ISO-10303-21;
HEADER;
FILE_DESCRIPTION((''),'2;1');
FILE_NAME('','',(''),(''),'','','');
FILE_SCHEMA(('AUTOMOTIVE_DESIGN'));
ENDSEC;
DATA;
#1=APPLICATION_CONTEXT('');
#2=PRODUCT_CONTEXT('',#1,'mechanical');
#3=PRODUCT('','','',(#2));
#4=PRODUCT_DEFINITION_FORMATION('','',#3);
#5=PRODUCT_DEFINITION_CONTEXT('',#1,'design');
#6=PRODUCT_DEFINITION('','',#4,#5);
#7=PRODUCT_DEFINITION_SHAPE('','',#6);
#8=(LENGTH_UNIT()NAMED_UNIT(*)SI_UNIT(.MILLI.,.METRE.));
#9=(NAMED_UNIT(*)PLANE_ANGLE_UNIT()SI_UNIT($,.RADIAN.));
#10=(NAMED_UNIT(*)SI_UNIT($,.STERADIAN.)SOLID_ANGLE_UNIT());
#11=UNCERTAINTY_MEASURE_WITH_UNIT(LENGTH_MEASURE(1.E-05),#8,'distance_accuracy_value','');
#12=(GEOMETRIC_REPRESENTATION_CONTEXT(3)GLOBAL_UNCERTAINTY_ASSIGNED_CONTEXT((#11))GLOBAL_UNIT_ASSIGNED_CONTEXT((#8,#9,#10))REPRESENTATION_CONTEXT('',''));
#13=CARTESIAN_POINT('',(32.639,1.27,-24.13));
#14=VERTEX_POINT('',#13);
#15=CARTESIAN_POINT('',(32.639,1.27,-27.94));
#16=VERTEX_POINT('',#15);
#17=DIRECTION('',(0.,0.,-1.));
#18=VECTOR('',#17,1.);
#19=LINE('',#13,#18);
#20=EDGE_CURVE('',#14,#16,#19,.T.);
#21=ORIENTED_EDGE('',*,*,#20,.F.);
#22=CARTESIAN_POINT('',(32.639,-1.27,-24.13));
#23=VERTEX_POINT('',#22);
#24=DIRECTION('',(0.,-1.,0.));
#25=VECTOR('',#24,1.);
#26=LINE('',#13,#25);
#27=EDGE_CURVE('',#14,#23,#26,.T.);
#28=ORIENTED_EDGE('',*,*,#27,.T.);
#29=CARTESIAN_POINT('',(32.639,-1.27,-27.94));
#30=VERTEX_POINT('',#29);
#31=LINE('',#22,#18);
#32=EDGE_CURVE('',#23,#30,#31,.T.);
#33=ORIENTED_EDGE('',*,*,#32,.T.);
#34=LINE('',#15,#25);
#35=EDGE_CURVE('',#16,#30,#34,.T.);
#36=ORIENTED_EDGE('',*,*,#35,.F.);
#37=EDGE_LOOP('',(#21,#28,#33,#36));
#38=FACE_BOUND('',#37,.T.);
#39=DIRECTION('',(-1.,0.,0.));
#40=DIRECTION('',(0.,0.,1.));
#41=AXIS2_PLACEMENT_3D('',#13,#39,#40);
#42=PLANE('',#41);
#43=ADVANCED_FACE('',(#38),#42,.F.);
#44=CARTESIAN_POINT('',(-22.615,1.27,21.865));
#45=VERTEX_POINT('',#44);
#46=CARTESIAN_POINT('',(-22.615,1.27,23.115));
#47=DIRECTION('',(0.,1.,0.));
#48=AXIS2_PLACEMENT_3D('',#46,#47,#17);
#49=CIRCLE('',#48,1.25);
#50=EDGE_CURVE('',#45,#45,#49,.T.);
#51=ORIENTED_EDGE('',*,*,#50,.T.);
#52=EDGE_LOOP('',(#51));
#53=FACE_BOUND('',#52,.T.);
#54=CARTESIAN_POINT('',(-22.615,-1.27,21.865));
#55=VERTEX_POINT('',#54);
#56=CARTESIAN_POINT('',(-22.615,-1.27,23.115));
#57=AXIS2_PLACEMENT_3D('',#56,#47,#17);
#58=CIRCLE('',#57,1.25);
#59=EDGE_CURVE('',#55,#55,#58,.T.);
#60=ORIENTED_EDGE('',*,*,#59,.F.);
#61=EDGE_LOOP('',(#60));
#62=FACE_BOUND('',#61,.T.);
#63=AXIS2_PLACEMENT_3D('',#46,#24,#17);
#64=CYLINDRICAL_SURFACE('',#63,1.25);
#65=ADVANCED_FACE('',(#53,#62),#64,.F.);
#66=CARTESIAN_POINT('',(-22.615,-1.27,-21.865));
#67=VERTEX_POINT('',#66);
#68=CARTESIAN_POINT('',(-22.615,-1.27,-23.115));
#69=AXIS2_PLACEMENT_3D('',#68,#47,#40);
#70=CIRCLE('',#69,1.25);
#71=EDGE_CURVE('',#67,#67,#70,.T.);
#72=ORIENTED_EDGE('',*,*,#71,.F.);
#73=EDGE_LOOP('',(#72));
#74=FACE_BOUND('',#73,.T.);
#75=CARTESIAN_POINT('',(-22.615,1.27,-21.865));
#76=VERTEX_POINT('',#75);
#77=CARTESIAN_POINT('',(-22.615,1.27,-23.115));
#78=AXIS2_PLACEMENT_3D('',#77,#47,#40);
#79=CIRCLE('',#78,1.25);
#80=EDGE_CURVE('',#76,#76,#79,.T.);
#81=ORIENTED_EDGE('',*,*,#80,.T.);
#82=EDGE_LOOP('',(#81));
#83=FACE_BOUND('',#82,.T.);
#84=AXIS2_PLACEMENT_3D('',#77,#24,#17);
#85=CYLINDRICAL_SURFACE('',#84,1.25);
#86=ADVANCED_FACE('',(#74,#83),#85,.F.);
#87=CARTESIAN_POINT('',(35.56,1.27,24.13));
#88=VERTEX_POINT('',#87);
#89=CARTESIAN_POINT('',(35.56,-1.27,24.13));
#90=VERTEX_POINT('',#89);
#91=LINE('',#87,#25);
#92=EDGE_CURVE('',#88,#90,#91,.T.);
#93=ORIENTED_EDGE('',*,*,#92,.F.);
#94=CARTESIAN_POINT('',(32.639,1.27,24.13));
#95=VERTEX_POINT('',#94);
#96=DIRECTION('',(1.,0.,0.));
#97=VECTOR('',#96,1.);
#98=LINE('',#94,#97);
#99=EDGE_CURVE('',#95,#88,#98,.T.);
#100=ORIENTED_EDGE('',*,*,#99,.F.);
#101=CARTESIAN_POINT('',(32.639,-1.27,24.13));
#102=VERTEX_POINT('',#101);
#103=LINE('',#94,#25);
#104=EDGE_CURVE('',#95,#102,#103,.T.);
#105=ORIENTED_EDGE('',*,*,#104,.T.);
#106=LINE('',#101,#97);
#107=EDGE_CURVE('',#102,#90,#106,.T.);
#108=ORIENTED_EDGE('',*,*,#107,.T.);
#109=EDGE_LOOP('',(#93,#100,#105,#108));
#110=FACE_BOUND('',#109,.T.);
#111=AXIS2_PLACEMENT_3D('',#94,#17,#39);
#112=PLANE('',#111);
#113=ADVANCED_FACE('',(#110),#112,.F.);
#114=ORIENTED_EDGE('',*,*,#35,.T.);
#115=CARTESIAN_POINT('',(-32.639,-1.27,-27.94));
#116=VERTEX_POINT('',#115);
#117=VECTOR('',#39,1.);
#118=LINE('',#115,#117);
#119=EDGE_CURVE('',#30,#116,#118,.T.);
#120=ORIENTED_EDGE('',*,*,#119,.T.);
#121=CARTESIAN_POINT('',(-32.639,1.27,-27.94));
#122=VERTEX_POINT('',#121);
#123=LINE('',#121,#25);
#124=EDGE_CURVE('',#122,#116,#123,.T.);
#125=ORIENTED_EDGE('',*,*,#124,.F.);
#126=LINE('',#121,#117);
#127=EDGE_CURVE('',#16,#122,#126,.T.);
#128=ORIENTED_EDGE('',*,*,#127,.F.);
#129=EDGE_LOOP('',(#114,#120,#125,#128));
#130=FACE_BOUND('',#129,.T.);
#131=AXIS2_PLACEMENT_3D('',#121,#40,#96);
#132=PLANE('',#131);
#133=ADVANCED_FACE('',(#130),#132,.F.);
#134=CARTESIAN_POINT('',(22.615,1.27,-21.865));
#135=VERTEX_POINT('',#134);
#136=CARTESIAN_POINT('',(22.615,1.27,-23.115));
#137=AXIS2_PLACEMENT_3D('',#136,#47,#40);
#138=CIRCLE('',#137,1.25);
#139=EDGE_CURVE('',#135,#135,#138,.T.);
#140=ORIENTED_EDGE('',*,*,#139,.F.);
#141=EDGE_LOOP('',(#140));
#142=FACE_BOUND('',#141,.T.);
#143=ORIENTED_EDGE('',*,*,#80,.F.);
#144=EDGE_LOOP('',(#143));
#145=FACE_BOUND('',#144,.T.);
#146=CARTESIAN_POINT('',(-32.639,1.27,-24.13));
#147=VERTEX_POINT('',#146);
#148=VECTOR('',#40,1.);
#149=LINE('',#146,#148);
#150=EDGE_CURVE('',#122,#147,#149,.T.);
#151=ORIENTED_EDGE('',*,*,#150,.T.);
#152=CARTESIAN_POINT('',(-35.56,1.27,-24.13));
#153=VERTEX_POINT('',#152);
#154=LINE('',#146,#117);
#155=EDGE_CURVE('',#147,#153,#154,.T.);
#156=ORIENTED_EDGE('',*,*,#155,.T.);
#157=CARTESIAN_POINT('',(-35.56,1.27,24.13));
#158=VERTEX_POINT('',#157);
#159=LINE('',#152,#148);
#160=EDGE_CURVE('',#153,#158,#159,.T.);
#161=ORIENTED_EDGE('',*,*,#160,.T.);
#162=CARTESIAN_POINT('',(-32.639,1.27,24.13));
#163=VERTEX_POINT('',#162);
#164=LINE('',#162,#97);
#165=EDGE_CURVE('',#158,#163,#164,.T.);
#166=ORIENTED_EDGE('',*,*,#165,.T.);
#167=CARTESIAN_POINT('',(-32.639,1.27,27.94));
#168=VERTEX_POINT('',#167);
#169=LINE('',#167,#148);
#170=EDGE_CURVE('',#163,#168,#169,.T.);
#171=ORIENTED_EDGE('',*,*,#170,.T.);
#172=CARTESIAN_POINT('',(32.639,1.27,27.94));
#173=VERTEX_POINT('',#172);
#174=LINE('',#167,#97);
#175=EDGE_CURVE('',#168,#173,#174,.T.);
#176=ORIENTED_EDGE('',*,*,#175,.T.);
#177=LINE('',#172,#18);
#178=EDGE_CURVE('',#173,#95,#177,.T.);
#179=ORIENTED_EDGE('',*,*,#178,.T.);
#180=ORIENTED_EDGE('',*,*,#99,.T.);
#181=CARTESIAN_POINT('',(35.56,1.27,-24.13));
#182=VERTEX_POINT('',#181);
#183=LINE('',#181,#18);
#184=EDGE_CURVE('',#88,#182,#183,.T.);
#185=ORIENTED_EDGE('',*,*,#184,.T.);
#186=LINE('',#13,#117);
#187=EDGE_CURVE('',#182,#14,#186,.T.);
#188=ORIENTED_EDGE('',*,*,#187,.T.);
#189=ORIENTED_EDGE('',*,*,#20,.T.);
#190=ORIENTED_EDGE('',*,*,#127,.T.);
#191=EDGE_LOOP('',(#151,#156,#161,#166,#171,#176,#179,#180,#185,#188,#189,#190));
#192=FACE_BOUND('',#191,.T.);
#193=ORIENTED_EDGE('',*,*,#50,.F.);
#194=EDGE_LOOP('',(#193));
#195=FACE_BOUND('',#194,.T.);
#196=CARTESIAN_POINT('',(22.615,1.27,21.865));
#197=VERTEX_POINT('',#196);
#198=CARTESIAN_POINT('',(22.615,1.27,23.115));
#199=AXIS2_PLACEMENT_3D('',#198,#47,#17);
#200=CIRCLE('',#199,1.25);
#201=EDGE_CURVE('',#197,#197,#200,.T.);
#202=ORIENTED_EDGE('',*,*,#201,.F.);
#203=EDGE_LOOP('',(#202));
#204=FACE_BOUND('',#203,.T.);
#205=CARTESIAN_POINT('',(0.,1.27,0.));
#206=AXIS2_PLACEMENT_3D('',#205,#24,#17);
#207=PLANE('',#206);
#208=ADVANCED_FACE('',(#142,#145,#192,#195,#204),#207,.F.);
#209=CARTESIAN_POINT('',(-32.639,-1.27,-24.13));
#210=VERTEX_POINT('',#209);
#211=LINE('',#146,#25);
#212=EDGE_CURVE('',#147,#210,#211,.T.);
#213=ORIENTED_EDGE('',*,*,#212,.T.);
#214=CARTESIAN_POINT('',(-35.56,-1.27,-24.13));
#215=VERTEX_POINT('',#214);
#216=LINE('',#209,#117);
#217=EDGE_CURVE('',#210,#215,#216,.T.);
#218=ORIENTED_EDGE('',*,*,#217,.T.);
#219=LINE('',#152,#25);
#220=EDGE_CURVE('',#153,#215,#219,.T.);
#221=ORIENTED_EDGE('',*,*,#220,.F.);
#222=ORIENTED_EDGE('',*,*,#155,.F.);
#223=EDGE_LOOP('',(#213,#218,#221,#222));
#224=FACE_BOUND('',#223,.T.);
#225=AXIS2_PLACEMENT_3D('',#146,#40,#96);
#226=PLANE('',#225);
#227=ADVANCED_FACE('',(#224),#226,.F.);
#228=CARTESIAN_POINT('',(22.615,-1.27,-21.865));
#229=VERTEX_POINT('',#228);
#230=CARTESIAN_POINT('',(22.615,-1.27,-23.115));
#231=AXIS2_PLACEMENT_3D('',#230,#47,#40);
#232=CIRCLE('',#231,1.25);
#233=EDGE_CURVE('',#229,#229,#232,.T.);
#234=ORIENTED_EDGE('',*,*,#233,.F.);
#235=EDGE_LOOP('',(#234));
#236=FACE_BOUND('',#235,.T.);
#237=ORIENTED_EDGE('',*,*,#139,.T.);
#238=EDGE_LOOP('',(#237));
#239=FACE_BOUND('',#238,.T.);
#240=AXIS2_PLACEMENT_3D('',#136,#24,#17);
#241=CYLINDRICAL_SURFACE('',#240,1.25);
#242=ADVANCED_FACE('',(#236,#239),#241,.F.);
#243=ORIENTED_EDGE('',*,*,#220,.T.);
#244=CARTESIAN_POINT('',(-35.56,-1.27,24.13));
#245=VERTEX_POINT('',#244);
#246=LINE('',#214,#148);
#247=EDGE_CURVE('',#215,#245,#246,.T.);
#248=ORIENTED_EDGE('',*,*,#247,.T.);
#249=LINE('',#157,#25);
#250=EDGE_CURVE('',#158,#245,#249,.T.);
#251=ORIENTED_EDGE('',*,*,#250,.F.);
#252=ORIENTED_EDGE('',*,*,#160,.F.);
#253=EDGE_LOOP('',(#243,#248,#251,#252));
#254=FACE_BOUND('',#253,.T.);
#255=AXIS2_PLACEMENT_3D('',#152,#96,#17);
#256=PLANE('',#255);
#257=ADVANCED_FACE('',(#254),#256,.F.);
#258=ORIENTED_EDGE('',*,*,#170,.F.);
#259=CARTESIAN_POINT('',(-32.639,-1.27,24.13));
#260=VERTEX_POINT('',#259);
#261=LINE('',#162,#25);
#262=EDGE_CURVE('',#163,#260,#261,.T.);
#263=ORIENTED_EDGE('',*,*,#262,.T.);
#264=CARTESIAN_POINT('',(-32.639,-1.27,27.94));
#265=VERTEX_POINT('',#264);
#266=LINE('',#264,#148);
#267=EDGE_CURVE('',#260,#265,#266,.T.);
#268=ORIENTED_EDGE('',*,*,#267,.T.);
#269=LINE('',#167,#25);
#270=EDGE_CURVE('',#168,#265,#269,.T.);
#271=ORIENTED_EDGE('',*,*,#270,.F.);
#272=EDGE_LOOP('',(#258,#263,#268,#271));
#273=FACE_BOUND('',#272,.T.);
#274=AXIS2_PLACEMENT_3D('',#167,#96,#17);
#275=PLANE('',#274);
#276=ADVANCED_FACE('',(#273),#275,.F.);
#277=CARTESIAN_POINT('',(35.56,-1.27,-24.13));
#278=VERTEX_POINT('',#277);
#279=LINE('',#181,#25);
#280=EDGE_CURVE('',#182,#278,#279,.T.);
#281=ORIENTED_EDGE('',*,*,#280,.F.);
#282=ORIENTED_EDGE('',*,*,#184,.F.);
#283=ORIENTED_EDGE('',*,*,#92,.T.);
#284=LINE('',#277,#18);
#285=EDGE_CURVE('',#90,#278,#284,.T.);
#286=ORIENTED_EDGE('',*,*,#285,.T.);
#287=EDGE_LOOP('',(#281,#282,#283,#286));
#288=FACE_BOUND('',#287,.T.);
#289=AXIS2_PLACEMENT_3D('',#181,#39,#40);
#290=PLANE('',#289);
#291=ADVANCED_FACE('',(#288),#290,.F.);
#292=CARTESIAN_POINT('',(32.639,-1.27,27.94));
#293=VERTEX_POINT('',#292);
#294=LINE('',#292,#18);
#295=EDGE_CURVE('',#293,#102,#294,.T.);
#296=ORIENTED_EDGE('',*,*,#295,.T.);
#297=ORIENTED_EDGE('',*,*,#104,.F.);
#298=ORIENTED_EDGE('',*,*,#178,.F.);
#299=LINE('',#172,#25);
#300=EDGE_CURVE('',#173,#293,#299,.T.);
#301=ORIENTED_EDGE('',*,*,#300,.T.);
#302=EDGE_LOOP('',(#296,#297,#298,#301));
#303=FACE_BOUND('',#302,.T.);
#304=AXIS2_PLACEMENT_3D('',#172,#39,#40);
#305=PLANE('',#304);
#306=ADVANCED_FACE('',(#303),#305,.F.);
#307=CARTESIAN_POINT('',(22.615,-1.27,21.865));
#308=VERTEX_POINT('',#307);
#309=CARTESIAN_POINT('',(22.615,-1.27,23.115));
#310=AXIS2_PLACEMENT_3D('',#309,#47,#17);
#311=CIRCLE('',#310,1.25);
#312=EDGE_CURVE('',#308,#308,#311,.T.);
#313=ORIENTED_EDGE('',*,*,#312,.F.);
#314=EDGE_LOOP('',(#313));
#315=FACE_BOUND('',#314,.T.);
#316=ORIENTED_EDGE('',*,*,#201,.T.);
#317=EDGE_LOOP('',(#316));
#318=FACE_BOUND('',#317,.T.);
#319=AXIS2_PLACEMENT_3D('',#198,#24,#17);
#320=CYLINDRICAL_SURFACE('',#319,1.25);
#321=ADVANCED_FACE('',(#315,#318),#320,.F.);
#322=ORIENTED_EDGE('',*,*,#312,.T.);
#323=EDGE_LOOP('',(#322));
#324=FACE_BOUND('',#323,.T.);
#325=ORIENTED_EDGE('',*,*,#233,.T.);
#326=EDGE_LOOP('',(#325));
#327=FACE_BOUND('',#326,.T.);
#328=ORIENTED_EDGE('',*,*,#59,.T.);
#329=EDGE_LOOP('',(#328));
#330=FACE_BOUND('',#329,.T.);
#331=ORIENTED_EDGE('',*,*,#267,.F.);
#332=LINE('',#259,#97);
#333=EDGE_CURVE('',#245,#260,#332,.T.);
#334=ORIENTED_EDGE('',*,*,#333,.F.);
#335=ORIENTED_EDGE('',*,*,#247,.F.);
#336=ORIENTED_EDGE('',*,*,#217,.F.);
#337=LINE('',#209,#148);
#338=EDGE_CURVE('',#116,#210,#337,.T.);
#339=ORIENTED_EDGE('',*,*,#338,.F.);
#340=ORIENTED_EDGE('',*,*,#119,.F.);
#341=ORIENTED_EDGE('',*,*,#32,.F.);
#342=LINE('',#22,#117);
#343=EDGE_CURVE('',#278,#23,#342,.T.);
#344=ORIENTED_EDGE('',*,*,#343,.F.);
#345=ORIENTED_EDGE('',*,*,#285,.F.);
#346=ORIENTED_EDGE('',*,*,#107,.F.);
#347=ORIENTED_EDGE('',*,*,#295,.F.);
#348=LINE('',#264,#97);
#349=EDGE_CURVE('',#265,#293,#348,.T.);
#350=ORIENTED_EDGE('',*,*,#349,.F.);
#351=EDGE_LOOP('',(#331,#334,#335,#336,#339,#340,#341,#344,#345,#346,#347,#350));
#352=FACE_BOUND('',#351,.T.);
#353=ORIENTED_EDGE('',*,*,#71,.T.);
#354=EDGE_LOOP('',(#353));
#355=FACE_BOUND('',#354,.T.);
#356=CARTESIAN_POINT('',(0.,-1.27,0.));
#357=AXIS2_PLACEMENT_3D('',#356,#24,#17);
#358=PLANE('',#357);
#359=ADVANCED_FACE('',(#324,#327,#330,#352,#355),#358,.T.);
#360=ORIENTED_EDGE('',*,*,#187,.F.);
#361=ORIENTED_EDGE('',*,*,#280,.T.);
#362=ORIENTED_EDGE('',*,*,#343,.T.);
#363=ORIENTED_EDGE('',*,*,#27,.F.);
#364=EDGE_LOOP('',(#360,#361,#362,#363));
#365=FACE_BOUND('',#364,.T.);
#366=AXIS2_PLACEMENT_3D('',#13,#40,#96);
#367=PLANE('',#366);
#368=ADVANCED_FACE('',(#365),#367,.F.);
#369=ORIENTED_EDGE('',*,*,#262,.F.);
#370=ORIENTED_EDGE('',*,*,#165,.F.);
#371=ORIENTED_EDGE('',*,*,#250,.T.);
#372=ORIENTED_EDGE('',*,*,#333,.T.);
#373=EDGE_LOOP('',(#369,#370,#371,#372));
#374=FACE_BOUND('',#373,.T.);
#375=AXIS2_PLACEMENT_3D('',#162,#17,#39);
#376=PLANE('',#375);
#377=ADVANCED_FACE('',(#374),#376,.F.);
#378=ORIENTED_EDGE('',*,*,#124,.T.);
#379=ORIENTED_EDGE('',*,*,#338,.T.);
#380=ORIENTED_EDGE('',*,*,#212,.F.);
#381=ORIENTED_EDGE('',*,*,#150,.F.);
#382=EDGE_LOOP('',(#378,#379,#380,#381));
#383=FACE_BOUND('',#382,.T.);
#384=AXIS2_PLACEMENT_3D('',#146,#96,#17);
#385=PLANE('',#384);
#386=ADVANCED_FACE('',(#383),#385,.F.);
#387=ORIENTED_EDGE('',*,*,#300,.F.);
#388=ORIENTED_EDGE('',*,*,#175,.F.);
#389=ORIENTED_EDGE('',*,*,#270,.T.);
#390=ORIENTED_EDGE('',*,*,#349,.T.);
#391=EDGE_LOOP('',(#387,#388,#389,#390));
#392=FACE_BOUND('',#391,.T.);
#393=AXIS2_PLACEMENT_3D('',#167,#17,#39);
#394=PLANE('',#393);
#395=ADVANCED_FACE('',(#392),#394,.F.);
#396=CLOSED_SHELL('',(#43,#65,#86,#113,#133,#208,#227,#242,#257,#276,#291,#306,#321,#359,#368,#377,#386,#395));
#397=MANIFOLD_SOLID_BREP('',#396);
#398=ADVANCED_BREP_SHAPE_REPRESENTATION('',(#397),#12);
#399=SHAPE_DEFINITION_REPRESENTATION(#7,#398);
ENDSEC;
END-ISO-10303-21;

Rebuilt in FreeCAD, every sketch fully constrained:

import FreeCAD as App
import Part
import Sketcher
from FreeCAD import Vector
Q = App.Units.Quantity

doc = App.newDocument("Part")
params = doc.addObject("Spreadsheet::Sheet", "Params")
for row, (alias, value) in enumerate([
    ("sketch1_height", "1.9 in"),
    ("sketch1_width", "2.57 in"),
    ("sketch1_height2", "0.15 in"),
    ("pad1_length", "0.1 in"),
], start=1):
    params.set(f"A{row}", alias)
    params.set(f"B{row}", "=" + value)
    params.setAlias(f"B{row}", alias)

body = doc.addObject("PartDesign::Body", "Body")

sketch1 = body.newObject("Sketcher::SketchObject", "Sketch")
sketch1.AttachmentSupport = (doc.getObject("XZ_Plane"), [""])
sketch1.MapMode = "FlatFace"
sketch1.addGeometry([
    Part.LineSegment(Vector(35.6, -24.1, 0), Vector(32.6, -24.1, 0)),
    Part.LineSegment(Vector(32.6, -24.1, 0), Vector(32.6, -27.9, 0)),
    Part.LineSegment(Vector(32.6, -27.9, 0), Vector(-32.6, -27.9, 0)),
    Part.LineSegment(Vector(-32.6, -27.9, 0), Vector(-32.6, -24.1, 0)),
    Part.LineSegment(Vector(-32.6, -24.1, 0), Vector(-35.6, -24.1, 0)),
    Part.LineSegment(Vector(-35.6, -24.1, 0), Vector(-35.6, 24.1, 0)),
    Part.LineSegment(Vector(-35.6, 24.1, 0), Vector(-32.6, 24.1, 0)),
    Part.LineSegment(Vector(-32.6, 24.1, 0), Vector(-32.6, 27.9, 0)),
    Part.LineSegment(Vector(-32.6, 27.9, 0), Vector(32.6, 27.9, 0)),
    Part.LineSegment(Vector(32.6, 27.9, 0), Vector(32.6, 24.1, 0)),
    Part.LineSegment(Vector(32.6, 24.1, 0), Vector(35.6, 24.1, 0)),
    Part.LineSegment(Vector(35.6, 24.1, 0), Vector(35.6, -24.1, 0)),
    Part.Circle(Vector(22.6, 23.1, 0), Vector(0, 0, 1), 1.2),
    Part.Circle(Vector(-22.6, 23.1, 0), Vector(0, 0, 1), 1.2),
    Part.Circle(Vector(22.6, -23.1, 0), Vector(0, 0, 1), 1.2),
    Part.Circle(Vector(-22.6, -23.1, 0), Vector(0, 0, 1), 1.2),
], False)
sketch1.addConstraint([
    Sketcher.Constraint("Coincident", 0, 2, 1, 1),
    Sketcher.Constraint("Coincident", 1, 2, 2, 1),
    Sketcher.Constraint("Coincident", 2, 2, 3, 1),
    Sketcher.Constraint("Coincident", 3, 2, 4, 1),
    Sketcher.Constraint("Coincident", 4, 2, 5, 1),
    Sketcher.Constraint("Coincident", 5, 2, 6, 1),
    Sketcher.Constraint("Coincident", 6, 2, 7, 1),
    Sketcher.Constraint("Coincident", 7, 2, 8, 1),
    Sketcher.Constraint("Coincident", 8, 2, 9, 1),
    Sketcher.Constraint("Coincident", 9, 2, 10, 1),
    Sketcher.Constraint("Coincident", 10, 2, 11, 1),
    Sketcher.Constraint("Coincident", 11, 2, 0, 1),
    Sketcher.Constraint("Horizontal", 0),
    Sketcher.Constraint("Vertical", 1),
    Sketcher.Constraint("Horizontal", 2),
    Sketcher.Constraint("Vertical", 3),
    Sketcher.Constraint("Horizontal", 4),
    Sketcher.Constraint("Vertical", 5),
    Sketcher.Constraint("Horizontal", 6),
    Sketcher.Constraint("Vertical", 7),
    Sketcher.Constraint("Horizontal", 8),
    Sketcher.Constraint("Vertical", 9),
    Sketcher.Constraint("Horizontal", 10),
    Sketcher.Constraint("Vertical", 11),
    Sketcher.Constraint("Equal", 12, 13),
    Sketcher.Constraint("Equal", 13, 14),
    Sketcher.Constraint("Equal", 14, 15),
    Sketcher.Constraint("Symmetric", 13, 3, 14, 3, -1, 1),
    Sketcher.Constraint("Symmetric", 12, 3, 15, 3, -1, 1),
    Sketcher.Constraint("Symmetric", 0, 2, 6, 2, -1, 1),
    Sketcher.Constraint("Symmetric", 2, 2, 8, 2, -1, 1),
    Sketcher.Constraint("Symmetric", 4, 2, 10, 2, -1, 1),
    Sketcher.Constraint("Symmetric", 12, 3, 13, 3, -2),
    Sketcher.Constraint("Symmetric", 0, 2, 3, 2, -2),
    Sketcher.Constraint("DistanceY", 5, 1, 5, 2, Q("1.9 in")),
    Sketcher.Constraint("DistanceX", 2, 2, 2, 1, Q("2.57 in")),
    Sketcher.Constraint("DistanceY", 1, 2, 1, 1, Q("0.15 in")),
    Sketcher.Constraint("DistanceX", 4, 2, -1, 1, Q("1.4 in")),
    Sketcher.Constraint("Diameter", 12, 2.5),
    Sketcher.Constraint("DistanceX", -1, 1, 12, 3, 22.615),
    Sketcher.Constraint("DistanceY", -1, 1, 12, 3, 23.115),
])
sketch1.setExpression("Constraints[34]", "Params.sketch1_height")
sketch1.setExpression("Constraints[35]", "Params.sketch1_width")
sketch1.setExpression("Constraints[36]", "Params.sketch1_height2")
pad1 = body.newObject("PartDesign::Pad", "Pad")
pad1.Profile = sketch1
pad1.setExpression("Length", "Params.pad1_length")
pad1.Midplane = True

doc.recompute()
